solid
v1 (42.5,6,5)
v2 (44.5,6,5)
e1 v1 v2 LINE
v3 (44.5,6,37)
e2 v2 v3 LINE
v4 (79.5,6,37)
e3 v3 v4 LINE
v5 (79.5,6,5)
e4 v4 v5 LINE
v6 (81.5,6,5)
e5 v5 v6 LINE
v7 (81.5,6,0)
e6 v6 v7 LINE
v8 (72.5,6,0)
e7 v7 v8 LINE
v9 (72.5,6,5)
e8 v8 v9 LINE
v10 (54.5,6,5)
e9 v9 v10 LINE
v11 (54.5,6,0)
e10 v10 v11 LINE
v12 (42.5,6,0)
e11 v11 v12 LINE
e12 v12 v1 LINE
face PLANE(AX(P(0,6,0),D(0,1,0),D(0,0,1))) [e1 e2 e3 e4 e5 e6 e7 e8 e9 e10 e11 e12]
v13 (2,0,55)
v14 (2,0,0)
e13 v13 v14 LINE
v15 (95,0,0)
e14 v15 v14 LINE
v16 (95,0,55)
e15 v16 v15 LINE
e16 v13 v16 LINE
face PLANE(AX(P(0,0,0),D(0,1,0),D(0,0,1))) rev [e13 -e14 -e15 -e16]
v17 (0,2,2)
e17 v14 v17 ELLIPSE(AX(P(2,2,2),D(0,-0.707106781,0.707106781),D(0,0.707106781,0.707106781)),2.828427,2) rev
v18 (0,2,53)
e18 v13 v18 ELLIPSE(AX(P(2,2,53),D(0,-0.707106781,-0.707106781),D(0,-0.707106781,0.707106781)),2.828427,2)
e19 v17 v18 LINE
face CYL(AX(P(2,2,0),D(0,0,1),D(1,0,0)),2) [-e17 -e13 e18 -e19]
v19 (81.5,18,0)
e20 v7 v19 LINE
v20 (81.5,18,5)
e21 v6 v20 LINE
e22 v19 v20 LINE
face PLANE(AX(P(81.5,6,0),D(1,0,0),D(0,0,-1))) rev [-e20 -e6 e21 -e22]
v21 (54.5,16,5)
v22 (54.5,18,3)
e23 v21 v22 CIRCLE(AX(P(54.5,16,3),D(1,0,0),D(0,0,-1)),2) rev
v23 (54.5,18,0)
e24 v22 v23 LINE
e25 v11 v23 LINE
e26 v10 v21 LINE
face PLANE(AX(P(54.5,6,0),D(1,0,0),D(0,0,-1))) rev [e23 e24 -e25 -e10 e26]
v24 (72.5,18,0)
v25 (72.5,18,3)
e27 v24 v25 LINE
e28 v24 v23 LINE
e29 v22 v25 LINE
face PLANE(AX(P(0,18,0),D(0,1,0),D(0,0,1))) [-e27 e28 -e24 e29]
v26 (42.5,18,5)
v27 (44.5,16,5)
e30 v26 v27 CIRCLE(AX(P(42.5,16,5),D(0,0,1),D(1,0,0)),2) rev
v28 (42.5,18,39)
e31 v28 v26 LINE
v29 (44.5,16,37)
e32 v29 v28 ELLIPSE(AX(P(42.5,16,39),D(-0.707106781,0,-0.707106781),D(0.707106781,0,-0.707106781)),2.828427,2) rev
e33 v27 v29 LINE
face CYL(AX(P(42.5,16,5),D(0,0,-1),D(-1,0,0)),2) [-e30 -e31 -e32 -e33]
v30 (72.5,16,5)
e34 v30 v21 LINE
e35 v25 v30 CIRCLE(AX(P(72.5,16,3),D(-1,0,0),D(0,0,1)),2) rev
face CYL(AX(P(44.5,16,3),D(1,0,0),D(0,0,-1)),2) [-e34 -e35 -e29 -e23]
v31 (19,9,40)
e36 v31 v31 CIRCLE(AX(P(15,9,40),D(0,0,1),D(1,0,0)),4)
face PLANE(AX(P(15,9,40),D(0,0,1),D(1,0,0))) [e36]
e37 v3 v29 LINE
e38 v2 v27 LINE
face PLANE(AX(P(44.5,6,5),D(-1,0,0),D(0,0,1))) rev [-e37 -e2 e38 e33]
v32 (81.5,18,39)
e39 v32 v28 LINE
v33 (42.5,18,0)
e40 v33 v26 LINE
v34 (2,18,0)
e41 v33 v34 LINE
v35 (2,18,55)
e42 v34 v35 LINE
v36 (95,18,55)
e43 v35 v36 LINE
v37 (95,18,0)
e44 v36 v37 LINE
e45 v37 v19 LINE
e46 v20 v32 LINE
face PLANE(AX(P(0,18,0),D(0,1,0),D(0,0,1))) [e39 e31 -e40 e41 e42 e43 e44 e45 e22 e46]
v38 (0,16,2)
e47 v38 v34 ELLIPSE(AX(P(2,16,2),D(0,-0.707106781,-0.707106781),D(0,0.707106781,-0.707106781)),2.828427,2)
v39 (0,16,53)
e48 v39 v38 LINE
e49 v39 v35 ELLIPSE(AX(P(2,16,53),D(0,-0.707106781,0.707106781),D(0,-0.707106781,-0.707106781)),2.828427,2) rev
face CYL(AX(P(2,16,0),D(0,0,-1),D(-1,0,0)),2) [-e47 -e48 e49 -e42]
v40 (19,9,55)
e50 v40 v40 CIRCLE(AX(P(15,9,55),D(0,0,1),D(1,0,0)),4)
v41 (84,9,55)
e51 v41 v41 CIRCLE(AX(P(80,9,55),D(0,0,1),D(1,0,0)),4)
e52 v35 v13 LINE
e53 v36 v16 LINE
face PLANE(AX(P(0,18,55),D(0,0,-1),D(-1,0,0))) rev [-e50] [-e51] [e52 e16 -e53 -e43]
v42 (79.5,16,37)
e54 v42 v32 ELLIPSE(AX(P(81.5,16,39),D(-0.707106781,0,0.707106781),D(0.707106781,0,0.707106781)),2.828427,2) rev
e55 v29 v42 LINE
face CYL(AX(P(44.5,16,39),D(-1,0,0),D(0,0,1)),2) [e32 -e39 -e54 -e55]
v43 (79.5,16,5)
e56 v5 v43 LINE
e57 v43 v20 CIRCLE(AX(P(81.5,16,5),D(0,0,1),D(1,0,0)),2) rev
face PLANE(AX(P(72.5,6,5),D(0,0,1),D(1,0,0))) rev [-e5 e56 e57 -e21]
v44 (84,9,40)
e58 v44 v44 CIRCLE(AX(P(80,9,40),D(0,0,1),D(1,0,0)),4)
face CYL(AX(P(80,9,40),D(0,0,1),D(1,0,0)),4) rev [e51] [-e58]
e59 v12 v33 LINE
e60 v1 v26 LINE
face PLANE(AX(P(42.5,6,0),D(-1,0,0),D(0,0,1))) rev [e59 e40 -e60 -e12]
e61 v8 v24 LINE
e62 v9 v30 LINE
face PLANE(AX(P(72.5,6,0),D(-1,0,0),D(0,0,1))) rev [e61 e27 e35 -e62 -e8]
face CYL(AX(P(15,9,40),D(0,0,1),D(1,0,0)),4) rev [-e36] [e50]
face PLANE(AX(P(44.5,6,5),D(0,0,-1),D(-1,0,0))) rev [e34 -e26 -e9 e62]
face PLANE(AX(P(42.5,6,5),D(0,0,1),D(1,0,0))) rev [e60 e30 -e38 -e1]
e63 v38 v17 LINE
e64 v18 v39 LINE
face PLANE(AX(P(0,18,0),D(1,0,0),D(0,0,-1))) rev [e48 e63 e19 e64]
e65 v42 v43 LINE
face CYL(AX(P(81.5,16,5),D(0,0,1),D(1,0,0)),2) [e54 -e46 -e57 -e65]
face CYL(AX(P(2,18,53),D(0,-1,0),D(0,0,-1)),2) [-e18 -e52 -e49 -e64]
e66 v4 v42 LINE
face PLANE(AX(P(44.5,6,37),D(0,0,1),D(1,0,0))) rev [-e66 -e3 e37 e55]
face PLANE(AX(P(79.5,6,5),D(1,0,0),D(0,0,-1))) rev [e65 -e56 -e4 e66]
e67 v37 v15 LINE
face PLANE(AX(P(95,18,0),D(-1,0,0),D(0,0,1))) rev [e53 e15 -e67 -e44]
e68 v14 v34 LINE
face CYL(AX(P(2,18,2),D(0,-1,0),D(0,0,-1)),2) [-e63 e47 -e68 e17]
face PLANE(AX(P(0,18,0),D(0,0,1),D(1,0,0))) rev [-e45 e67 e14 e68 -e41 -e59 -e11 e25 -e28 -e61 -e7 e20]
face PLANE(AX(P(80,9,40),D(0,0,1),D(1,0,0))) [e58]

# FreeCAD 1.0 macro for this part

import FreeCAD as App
import Part
import Sketcher
from FreeCAD import Vector
Q = App.Units.Quantity


def edges_at(feature, points):
    """Names of the edges that pass closest to the given points."""
    edges = feature.Shape.Edges
    near = lambda p: min(range(len(edges)), key=lambda i: edges[i].distToShape(Part.Vertex(*p))[0])
    return sorted({f"Edge{near(p) + 1}" for p in points})

doc = App.newDocument("Part")
body = doc.addObject("PartDesign::Body", "Body")

sketch1 = body.newObject("Sketcher::SketchObject", "Sketch")
sketch1.AttachmentSupport = (doc.getObject("XZ_Plane"), [""])
sketch1.MapMode = "FlatFace"
sketch1.addGeometry([
    Part.LineSegment(Vector(0, 0, 0), Vector(0, 55, 0)),
    Part.LineSegment(Vector(0, 55, 0), Vector(95, 55, 0)),
    Part.LineSegment(Vector(95, 55, 0), Vector(95, 0, 0)),
    Part.LineSegment(Vector(95, 0, 0), Vector(0, 0, 0)),
], False)
sketch1.addConstraint([
    Sketcher.Constraint("Coincident", 0, 2, 1, 1),
    Sketcher.Constraint("Coincident", 1, 2, 2, 1),
    Sketcher.Constraint("Coincident", 2, 2, 3, 1),
    Sketcher.Constraint("Coincident", 3, 2, 0, 1),
    Sketcher.Constraint("Vertical", 0),
    Sketcher.Constraint("Horizontal", 1),
    Sketcher.Constraint("Vertical", 2),
    Sketcher.Constraint("Horizontal", 3),
    Sketcher.Constraint("Coincident", 3, 2, -1, 1),
    Sketcher.Constraint("DistanceX", 1, 1, 1, 2, Q("95 mm")),
    Sketcher.Constraint("DistanceY", 0, 1, 0, 2, Q("55 mm")),
])
pad1 = body.newObject("PartDesign::Pad", "Pad")
pad1.Profile = sketch1
pad1.Length = 18
pad1.Reversed = True

sketch2 = body.newObject("Sketcher::SketchObject", "Sketch001")
sketch2.AttachmentSupport = (doc.getObject("XY_Plane"), [""])
sketch2.MapMode = "FlatFace"
sketch2.AttachmentOffset = App.Placement(Vector(0, 0, 55), App.Rotation())
sketch2.addGeometry([
    Part.Circle(Vector(80, 9, 0), Vector(0, 0, 1), 4),
    Part.Circle(Vector(15, 9, 0), Vector(0, 0, 1), 4),
], False)
sketch2.addConstraint([
    Sketcher.Constraint("Equal", 0, 1),
    Sketcher.Constraint("Horizontal", 0, 3, 1, 3),
    Sketcher.Constraint("Diameter", 0, Q("8 mm")),
    Sketcher.Constraint("DistanceX", -1, 1, 0, 3, Q("80 mm")),
    Sketcher.Constraint("DistanceY", -1, 1, 0, 3, Q("9 mm")),
    Sketcher.Constraint("DistanceX", -1, 1, 1, 3, Q("15 mm")),
])
pocket1 = body.newObject("PartDesign::Pocket", "Pocket")
pocket1.Profile = sketch2
pocket1.Length = 15

sketch3 = body.newObject("Sketcher::SketchObject", "Sketch002")
sketch3.AttachmentSupport = (doc.getObject("XZ_Plane"), [""])
sketch3.MapMode = "FlatFace"
sketch3.AttachmentOffset = App.Placement(Vector(0, 0, -18), App.Rotation())
sketch3.addGeometry([
    Part.LineSegment(Vector(44, 5, 0), Vector(44, 37, 0)),
    Part.LineSegment(Vector(44, 37, 0), Vector(80, 37, 0)),
    Part.LineSegment(Vector(80, 37, 0), Vector(80, 5, 0)),
    Part.LineSegment(Vector(80, 5, 0), Vector(44, 5, 0)),
], False)
sketch3.addConstraint([
    Sketcher.Constraint("Coincident", 0, 2, 1, 1),
    Sketcher.Constraint("Coincident", 1, 2, 2, 1),
    Sketcher.Constraint("Coincident", 2, 2, 3, 1),
    Sketcher.Constraint("Coincident", 3, 2, 0, 1),
    Sketcher.Constraint("Vertical", 0),
    Sketcher.Constraint("Horizontal", 1),
    Sketcher.Constraint("Vertical", 2),
    Sketcher.Constraint("Horizontal", 3),
    Sketcher.Constraint("DistanceX", 1, 1, 1, 2, Q("35 mm")),
    Sketcher.Constraint("DistanceY", 0, 1, 0, 2, Q("32 mm")),
    Sketcher.Constraint("DistanceY", -1, 1, 0, 2, Q("37 mm")),
    Sketcher.Constraint("DistanceX", -1, 1, 0, 2, Q("44.5 mm")),
])
pocket2 = body.newObject("PartDesign::Pocket", "Pocket001")
pocket2.Profile = sketch3
pocket2.Length = 12
pocket2.Reversed = True
doc.recompute()

fillet = body.newObject("PartDesign::Fillet", "Fillet")
fillet.Base = (pocket2, edges_at(pocket2, [
    (44.5, 18, 21),
    (62, 18, 37),
    (79.5, 18, 21),
    (62, 18, 5),
    (0, 18, 27.5),
    (0, 0, 27.5),
    (0, 9, 0),
    (0, 9, 55),
]))
fillet.Radius = 2

sketch4 = body.newObject("Sketcher::SketchObject", "Sketch003")
sketch4.AttachmentSupport = (doc.getObject("XZ_Plane"), [""])
sketch4.MapMode = "FlatFace"
sketch4.AttachmentOffset = App.Placement(Vector(0, 0, -18), App.Rotation())
sketch4.addGeometry([
    Part.LineSegment(Vector(42, 0, 0), Vector(42, 5, 0)),
    Part.LineSegment(Vector(42, 5, 0), Vector(54, 5, 0)),
    Part.LineSegment(Vector(54, 5, 0), Vector(54, 0, 0)),
    Part.LineSegment(Vector(54, 0, 0), Vector(42, 0, 0)),
], False)
sketch4.addConstraint([
    Sketcher.Constraint("Coincident", 0, 2, 1, 1),
    Sketcher.Constraint("Coincident", 1, 2, 2, 1),
    Sketcher.Constraint("Coincident", 2, 2, 3, 1),
    Sketcher.Constraint("Coincident", 3, 2, 0, 1),
    Sketcher.Constraint("Vertical", 0),
    Sketcher.Constraint("Horizontal", 1),
    Sketcher.Constraint("Vertical", 2),
    Sketcher.Constraint("Horizontal", 3),
    Sketcher.Constraint("PointOnObject", 2, 2, -1),
    Sketcher.Constraint("DistanceX", 1, 1, 1, 2, Q("12 mm")),
    Sketcher.Constraint("DistanceY", 0, 1, 0, 2, Q("5 mm")),
    Sketcher.Constraint("DistanceX", -1, 1, 0, 2, Q("42.5 mm")),
])
pocket3 = body.newObject("PartDesign::Pocket", "Pocket002")
pocket3.Profile = sketch4
pocket3.Length = 12
pocket3.Reversed = True

sketch5 = body.newObject("Sketcher::SketchObject", "Sketch004")
sketch5.AttachmentSupport = (doc.getObject("XZ_Plane"), [""])
sketch5.MapMode = "FlatFace"
sketch5.AttachmentOffset = App.Placement(Vector(0, 0, -18), App.Rotation())
sketch5.addGeometry([
    Part.LineSegment(Vector(72, 0, 0), Vector(72, 5, 0)),
    Part.LineSegment(Vector(72, 5, 0), Vector(82, 5, 0)),
    Part.LineSegment(Vector(82, 5, 0), Vector(82, 0, 0)),
    Part.LineSegment(Vector(82, 0, 0), Vector(72, 0, 0)),
], False)
sketch5.addConstraint([
    Sketcher.Constraint("Coincident", 0, 2, 1, 1),
    Sketcher.Constraint("Coincident", 1, 2, 2, 1),
    Sketcher.Constraint("Coincident", 2, 2, 3, 1),
    Sketcher.Constraint("Coincident", 3, 2, 0, 1),
    Sketcher.Constraint("Vertical", 0),
    Sketcher.Constraint("Horizontal", 1),
    Sketcher.Constraint("Vertical", 2),
    Sketcher.Constraint("Horizontal", 3),
    Sketcher.Constraint("PointOnObject", 2, 2, -1),
    Sketcher.Constraint("DistanceX", 1, 1, 1, 2, Q("9 mm")),
    Sketcher.Constraint("DistanceY", 0, 1, 0, 2, Q("5 mm")),
    Sketcher.Constraint("DistanceX", -1, 1, 0, 2, Q("72.5 mm")),
])
pocket4 = body.newObject("PartDesign::Pocket", "Pocket003")
pocket4.Profile = sketch5
pocket4.Length = 12
pocket4.Reversed = True

doc.recompute()
